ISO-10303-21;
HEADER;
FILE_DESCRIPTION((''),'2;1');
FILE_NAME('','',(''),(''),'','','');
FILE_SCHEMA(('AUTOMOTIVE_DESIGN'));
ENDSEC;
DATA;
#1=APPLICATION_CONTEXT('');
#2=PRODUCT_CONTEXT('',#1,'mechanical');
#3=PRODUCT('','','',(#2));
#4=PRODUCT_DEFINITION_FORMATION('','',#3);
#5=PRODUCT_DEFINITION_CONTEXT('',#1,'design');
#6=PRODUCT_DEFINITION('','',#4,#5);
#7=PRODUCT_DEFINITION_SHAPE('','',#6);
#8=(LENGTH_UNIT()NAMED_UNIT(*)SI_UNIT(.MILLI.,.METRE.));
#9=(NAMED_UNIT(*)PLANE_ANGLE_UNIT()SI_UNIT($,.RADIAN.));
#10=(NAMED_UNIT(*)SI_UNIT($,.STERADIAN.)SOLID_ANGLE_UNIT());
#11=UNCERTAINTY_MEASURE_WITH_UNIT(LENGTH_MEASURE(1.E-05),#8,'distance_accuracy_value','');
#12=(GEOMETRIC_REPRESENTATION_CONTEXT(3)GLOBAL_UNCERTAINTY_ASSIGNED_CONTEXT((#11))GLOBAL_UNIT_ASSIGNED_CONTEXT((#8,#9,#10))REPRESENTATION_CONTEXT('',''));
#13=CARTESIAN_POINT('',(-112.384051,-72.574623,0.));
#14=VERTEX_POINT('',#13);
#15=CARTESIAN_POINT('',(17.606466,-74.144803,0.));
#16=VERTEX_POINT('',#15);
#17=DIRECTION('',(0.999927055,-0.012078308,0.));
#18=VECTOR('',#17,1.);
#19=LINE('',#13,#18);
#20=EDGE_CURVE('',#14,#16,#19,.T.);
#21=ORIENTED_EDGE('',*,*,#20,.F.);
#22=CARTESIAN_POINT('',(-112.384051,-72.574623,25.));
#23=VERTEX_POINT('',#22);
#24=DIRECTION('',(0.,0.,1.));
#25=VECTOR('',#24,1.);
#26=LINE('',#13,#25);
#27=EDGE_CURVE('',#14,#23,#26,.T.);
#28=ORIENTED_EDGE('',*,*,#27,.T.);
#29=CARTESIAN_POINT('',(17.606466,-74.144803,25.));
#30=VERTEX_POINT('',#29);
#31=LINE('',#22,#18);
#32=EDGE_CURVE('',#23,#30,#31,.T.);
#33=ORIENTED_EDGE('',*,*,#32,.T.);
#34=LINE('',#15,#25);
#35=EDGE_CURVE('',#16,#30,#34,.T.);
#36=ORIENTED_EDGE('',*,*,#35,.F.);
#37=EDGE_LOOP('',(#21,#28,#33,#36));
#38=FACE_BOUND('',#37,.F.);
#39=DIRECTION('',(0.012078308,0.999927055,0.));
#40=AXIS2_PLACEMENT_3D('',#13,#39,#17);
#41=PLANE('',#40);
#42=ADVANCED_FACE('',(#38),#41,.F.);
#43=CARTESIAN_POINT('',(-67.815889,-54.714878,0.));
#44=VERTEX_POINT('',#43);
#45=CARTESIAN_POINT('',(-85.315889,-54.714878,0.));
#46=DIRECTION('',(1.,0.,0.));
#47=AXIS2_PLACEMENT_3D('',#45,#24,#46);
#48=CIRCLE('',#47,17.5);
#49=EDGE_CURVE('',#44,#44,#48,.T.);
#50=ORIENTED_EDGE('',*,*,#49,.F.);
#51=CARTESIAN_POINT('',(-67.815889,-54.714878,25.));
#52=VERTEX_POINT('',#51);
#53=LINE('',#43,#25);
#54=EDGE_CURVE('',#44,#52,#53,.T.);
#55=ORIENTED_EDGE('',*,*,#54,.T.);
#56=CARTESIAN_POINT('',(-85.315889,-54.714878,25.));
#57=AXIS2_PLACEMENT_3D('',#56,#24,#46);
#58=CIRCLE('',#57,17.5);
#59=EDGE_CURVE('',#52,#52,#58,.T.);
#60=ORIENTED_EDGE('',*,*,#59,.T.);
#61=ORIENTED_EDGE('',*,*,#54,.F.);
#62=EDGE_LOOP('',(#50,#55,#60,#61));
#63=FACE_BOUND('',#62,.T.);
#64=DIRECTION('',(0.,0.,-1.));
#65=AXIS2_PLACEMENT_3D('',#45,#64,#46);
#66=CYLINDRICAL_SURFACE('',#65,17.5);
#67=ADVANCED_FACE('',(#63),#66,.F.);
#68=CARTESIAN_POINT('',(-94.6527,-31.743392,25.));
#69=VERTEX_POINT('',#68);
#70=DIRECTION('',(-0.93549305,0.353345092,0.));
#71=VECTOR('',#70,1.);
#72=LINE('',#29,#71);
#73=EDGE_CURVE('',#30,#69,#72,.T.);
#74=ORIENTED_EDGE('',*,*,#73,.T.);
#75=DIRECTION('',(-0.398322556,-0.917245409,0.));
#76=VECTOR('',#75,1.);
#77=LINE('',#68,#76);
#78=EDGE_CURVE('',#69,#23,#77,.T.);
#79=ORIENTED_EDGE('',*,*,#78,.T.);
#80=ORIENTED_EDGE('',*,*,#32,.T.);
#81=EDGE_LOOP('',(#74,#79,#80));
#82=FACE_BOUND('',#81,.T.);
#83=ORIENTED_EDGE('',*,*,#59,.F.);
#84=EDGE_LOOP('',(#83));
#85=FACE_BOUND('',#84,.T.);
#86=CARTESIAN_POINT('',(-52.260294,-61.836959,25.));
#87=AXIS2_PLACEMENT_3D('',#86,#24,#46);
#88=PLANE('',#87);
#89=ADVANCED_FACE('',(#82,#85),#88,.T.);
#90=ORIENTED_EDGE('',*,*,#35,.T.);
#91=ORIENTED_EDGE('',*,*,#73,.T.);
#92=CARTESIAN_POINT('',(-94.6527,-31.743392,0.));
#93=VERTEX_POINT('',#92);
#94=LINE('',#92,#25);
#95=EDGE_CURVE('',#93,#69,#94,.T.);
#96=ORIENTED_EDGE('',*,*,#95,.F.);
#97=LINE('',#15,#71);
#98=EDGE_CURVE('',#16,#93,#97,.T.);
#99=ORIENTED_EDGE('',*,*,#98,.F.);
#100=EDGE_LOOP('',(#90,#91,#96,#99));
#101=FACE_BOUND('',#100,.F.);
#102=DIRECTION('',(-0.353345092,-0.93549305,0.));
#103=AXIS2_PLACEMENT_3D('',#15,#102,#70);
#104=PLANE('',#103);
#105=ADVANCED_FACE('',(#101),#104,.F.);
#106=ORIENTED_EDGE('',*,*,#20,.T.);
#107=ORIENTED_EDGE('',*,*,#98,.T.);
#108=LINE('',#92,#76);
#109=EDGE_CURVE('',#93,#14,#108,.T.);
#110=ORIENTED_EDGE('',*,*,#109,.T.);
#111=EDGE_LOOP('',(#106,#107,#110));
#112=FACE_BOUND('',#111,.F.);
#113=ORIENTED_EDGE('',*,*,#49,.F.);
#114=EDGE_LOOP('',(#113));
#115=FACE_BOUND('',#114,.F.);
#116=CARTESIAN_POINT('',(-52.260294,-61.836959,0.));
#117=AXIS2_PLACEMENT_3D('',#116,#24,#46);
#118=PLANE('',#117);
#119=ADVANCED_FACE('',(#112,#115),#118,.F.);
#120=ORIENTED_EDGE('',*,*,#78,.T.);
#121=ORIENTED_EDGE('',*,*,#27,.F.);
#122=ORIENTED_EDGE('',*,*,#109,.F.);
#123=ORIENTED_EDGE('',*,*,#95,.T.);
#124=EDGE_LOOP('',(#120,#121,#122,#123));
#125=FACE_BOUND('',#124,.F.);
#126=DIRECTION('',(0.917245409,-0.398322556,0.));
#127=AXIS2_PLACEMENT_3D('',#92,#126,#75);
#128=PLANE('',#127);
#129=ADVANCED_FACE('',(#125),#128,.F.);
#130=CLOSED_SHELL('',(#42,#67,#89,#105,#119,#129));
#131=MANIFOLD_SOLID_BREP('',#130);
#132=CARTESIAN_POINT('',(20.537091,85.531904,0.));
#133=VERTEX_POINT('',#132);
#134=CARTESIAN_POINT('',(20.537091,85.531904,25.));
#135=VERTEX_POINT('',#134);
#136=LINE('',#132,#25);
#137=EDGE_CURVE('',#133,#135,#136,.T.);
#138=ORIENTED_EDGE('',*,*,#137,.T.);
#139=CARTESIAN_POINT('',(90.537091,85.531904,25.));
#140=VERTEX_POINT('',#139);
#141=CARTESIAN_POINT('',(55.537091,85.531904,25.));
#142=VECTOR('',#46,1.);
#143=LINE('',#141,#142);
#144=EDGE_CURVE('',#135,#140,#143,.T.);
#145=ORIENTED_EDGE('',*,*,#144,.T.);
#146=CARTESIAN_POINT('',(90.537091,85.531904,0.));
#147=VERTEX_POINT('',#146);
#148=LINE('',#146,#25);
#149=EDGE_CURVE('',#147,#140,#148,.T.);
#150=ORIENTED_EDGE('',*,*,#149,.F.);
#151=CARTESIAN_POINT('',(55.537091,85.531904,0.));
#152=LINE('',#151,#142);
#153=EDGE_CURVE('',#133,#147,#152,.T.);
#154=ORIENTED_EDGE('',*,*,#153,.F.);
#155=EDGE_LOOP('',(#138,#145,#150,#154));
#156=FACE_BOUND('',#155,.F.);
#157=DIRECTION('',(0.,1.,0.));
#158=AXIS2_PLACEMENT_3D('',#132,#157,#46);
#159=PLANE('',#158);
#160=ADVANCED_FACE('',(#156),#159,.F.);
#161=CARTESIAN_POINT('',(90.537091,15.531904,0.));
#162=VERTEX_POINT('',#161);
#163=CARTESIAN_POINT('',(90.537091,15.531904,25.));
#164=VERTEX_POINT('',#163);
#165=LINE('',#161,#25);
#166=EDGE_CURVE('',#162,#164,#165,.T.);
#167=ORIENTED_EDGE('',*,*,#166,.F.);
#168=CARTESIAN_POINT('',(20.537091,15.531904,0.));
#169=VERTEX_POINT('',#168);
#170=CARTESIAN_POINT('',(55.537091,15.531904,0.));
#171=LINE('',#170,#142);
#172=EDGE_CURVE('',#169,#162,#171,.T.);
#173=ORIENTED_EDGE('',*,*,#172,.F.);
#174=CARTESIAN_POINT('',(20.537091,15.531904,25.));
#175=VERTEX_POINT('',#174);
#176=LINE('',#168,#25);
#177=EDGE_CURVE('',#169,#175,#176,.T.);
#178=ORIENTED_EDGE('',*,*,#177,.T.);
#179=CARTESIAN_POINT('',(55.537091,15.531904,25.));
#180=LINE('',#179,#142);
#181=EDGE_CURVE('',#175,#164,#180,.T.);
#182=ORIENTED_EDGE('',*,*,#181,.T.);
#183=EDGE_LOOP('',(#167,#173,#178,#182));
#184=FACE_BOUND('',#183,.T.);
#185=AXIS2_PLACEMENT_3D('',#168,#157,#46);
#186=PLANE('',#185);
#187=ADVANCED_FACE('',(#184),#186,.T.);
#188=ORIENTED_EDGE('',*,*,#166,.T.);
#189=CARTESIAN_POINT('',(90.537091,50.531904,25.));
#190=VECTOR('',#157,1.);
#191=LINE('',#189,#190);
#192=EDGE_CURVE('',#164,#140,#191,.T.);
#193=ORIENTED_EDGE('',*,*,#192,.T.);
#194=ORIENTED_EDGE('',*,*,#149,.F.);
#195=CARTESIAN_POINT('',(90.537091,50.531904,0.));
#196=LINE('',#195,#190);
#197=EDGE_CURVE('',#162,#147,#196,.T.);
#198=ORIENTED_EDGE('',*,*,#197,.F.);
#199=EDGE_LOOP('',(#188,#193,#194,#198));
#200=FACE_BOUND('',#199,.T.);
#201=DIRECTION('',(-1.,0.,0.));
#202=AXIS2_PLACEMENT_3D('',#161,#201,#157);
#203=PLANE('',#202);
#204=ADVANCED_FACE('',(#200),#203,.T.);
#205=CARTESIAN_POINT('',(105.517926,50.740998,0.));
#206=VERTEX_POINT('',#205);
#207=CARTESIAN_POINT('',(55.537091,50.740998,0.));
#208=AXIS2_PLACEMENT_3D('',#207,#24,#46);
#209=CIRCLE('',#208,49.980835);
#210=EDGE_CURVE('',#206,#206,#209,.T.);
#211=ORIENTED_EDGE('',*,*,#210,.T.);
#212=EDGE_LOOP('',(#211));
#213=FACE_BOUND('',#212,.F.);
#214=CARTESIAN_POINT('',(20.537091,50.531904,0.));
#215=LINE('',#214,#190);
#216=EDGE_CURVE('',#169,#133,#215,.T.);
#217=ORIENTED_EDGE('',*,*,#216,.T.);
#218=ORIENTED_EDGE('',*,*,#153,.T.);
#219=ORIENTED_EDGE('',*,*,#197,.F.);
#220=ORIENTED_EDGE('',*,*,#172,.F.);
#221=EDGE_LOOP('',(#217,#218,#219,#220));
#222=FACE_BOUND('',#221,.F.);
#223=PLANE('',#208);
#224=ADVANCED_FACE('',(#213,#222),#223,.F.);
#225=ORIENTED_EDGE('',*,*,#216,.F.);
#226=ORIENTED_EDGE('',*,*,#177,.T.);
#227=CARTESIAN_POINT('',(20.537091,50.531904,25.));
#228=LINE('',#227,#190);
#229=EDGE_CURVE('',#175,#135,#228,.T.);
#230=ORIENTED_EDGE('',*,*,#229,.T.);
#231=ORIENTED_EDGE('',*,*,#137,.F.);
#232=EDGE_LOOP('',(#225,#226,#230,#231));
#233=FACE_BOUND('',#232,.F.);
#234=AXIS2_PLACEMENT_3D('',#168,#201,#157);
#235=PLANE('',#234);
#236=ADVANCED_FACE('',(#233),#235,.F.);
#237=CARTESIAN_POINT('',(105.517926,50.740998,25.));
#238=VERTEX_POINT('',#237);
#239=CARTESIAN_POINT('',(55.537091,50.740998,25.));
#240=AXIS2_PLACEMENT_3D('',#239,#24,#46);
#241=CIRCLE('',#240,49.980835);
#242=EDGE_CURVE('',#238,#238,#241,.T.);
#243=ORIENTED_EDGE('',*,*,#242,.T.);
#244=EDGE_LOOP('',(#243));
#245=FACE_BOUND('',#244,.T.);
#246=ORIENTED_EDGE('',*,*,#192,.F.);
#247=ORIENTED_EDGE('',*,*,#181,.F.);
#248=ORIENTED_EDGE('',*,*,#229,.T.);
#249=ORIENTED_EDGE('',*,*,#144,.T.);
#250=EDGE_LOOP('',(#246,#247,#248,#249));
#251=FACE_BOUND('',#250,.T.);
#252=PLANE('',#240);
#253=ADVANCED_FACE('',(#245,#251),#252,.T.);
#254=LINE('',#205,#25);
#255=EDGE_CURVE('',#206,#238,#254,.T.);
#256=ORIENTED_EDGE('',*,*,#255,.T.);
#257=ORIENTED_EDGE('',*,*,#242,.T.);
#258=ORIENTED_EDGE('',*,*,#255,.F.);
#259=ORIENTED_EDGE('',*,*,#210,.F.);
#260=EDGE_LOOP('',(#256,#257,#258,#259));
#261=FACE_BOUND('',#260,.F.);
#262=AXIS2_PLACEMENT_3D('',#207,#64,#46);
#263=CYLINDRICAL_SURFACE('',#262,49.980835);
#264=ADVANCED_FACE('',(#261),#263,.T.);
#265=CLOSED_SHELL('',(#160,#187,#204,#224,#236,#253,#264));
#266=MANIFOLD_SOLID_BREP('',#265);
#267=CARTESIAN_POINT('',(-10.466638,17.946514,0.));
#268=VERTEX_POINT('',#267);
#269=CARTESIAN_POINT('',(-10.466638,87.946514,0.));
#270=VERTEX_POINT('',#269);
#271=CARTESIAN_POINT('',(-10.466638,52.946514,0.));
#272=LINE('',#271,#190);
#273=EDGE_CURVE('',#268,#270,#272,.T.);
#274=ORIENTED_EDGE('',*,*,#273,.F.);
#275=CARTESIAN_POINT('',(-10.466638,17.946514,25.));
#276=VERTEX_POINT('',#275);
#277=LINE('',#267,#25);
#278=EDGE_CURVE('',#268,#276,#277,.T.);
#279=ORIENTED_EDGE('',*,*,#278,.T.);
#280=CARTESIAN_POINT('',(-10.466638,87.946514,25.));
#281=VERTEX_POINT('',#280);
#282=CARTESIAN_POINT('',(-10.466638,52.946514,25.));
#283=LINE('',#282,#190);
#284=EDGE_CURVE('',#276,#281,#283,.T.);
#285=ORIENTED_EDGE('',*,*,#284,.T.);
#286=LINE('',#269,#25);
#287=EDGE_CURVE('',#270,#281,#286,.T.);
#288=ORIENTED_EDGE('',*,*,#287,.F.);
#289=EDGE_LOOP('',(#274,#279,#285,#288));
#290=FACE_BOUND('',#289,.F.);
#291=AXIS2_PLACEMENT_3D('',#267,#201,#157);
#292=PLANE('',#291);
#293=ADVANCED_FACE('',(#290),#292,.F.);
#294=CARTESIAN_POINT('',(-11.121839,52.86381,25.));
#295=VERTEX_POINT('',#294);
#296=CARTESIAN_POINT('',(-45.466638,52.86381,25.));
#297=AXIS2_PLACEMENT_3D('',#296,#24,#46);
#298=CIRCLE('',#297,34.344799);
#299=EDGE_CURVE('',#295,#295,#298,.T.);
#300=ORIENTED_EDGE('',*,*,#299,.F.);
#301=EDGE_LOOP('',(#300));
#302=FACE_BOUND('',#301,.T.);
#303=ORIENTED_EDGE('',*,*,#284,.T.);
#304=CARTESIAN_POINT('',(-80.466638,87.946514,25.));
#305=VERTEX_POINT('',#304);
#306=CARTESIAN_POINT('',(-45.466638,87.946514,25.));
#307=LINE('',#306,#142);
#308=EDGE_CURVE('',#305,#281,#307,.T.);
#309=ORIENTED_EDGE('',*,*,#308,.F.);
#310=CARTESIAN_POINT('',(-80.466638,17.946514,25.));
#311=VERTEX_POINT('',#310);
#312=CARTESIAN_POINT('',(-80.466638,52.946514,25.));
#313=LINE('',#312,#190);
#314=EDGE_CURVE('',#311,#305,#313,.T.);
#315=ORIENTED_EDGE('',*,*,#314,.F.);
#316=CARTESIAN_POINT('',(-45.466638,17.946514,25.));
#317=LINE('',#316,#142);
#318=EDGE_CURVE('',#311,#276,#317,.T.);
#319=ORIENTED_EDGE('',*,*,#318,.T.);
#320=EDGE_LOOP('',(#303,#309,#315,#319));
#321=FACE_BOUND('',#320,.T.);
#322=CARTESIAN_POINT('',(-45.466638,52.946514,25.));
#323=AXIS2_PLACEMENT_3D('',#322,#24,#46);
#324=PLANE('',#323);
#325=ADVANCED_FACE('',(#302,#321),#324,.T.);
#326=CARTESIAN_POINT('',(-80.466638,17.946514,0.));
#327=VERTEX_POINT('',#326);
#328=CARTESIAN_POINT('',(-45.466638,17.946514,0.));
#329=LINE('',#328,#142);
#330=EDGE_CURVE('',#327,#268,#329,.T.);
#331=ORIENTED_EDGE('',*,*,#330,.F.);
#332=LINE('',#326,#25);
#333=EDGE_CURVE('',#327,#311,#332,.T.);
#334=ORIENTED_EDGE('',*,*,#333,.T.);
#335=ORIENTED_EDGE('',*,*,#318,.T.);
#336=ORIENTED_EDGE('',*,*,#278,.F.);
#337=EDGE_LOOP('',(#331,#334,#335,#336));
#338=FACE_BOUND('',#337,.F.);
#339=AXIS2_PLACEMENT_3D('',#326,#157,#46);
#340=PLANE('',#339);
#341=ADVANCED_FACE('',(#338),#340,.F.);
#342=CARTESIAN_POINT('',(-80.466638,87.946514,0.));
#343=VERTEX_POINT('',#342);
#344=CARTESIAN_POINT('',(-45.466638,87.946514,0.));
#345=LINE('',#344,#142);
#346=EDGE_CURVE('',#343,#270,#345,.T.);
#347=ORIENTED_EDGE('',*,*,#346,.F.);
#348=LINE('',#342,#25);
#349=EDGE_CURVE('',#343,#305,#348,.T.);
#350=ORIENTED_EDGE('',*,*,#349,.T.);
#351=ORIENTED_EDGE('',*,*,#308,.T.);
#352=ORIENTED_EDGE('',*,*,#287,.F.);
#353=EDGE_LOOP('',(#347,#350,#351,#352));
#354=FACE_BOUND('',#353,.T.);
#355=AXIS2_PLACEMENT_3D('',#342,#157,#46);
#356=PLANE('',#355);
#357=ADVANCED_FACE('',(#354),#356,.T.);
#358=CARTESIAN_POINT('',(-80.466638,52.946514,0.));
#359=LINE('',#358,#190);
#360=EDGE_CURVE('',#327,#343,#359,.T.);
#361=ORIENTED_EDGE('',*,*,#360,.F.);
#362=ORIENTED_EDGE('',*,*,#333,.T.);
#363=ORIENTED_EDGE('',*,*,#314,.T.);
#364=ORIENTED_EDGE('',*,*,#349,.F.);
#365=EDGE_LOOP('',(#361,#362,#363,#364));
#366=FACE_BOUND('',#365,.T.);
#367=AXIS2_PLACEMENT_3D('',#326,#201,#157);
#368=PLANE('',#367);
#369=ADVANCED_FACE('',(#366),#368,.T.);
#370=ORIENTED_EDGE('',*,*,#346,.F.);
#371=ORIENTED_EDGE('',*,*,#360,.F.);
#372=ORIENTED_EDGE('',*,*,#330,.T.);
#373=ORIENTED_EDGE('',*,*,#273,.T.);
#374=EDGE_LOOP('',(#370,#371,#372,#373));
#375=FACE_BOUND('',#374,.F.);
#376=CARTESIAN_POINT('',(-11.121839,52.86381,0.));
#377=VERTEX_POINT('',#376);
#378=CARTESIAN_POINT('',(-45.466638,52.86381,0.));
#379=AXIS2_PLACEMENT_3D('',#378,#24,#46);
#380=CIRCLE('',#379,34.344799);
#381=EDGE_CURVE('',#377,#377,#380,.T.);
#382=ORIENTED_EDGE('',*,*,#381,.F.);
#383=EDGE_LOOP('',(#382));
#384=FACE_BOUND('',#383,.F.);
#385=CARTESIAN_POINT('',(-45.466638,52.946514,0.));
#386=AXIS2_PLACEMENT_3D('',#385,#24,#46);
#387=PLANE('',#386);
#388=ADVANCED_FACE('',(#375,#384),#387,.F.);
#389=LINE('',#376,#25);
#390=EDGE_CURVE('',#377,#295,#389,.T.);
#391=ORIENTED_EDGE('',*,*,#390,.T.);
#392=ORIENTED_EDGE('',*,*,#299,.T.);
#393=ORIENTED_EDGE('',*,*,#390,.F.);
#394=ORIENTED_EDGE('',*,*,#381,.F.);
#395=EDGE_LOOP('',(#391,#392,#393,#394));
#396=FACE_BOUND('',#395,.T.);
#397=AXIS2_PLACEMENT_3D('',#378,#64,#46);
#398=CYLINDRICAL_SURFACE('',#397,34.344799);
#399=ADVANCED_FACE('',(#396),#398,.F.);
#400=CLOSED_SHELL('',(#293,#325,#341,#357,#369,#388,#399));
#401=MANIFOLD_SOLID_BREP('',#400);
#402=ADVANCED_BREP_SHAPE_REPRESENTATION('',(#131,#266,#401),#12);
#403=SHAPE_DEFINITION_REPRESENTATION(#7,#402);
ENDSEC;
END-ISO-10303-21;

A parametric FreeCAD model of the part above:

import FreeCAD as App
import Part
import Sketcher
from FreeCAD import Vector

doc = App.newDocument("Part")
body = doc.addObject("PartDesign::Body", "Body")
body.AllowCompound = True

sketch1 = body.newObject("Sketcher::SketchObject", "Sketch")
sketch1.AttachmentSupport = (doc.getObject("XY_Plane"), [""])
sketch1.MapMode = "FlatFace"
sketch1.addGeometry([
    Part.LineSegment(Vector(-112, -73, 0), Vector(18, -74, 0)),
    Part.LineSegment(Vector(18, -74, 0), Vector(-95, -32, 0)),
    Part.LineSegment(Vector(-95, -32, 0), Vector(-112, -73, 0)),
    Part.Circle(Vector(-85, -55, 0), Vector(0, 0, 1), 18),
    Part.Circle(Vector(56, 51, 0), Vector(0, 0, 1), 50),
    Part.LineSegment(Vector(91, 16, 0), Vector(21, 16, 0)),
    Part.LineSegment(Vector(21, 16, 0), Vector(21, 86, 0)),
    Part.LineSegment(Vector(21, 86, 0), Vector(91, 86, 0)),
    Part.LineSegment(Vector(91, 86, 0), Vector(91, 16, 0)),
    Part.LineSegment(Vector(-80, 88, 0), Vector(-80, 18, 0)),
    Part.LineSegment(Vector(-80, 18, 0), Vector(-10, 18, 0)),
    Part.LineSegment(Vector(-10, 18, 0), Vector(-10, 88, 0)),
    Part.LineSegment(Vector(-10, 88, 0), Vector(-80, 88, 0)),
    Part.Circle(Vector(-45, 53, 0), Vector(0, 0, 1), 34),
], False)
sketch1.addConstraint([
    Sketcher.Constraint("Coincident", 0, 2, 1, 1),
    Sketcher.Constraint("Coincident", 1, 2, 2, 1),
    Sketcher.Constraint("Coincident", 2, 2, 0, 1),
    Sketcher.Constraint("Coincident", 5, 2, 6, 1),
    Sketcher.Constraint("Coincident", 6, 2, 7, 1),
    Sketcher.Constraint("Coincident", 7, 2, 8, 1),
    Sketcher.Constraint("Coincident", 8, 2, 5, 1),
    Sketcher.Constraint("Coincident", 9, 2, 10, 1),
    Sketcher.Constraint("Coincident", 10, 2, 11, 1),
    Sketcher.Constraint("Coincident", 11, 2, 12, 1),
    Sketcher.Constraint("Coincident", 12, 2, 9, 1),
    Sketcher.Constraint("Horizontal", 5),
    Sketcher.Constraint("Vertical", 6),
    Sketcher.Constraint("Horizontal", 7),
    Sketcher.Constraint("Vertical", 8),
    Sketcher.Constraint("Vertical", 9),
    Sketcher.Constraint("Horizontal", 10),
    Sketcher.Constraint("Vertical", 11),
    Sketcher.Constraint("Horizontal", 12),
    Sketcher.Constraint("Equal", 7, 10),
    Sketcher.Constraint("Equal", 12, 6),
    Sketcher.Constraint("Equal", 8, 9),
    Sketcher.Constraint("Diameter", 3, 35.0),
    Sketcher.Constraint("DistanceX", 5, 2, 5, 1, 70.0),
    Sketcher.Constraint("Distance", 0, 130.0),
    Sketcher.Constraint("Distance", 1, 120.0),
    Sketcher.Constraint("DistanceX", 5, 2, 4, 3, 35.0),
    Sketcher.Constraint("DistanceX", 9, 2, 13, 3, 35.0),
    Sketcher.Constraint("Diameter", 13, 68.689598),
    Sketcher.Constraint("Diameter", 4, 99.96167),
    Sketcher.Constraint("DistanceX", 1, 2, -1, 1, 94.6527),
    Sketcher.Constraint("DistanceY", 0, 2, 4, 3, 124.885801),
    Sketcher.Constraint("DistanceY", 1, 2, 13, 3, 84.607202),
    Sketcher.Constraint("DistanceX", 3, 3, -1, 1, 85.315889),
    Sketcher.Constraint("DistanceX", -1, 1, 4, 3, 55.537091),
    Sketcher.Constraint("DistanceX", 13, 3, -1, 1, 45.466638),
    Sketcher.Constraint("DistanceY", -1, 1, 13, 3, 52.86381),
    Sketcher.Constraint("DistanceX", 2, 2, -1, 1, 112.384051),
    Sketcher.Constraint("DistanceY", 3, 3, 13, 3, 107.578688),
    Sketcher.Constraint("DistanceY", 0, 2, 1, 2, 42.401411),
    Sketcher.Constraint("DistanceY", 3, 3, 5, 2, 70.246782),
    Sketcher.Constraint("DistanceY", 5, 2, 9, 2, 2.41461),
])
pad1 = body.newObject("PartDesign::Pad", "Pad")
pad1.Profile = sketch1
pad1.Length = 25

doc.recompute()
